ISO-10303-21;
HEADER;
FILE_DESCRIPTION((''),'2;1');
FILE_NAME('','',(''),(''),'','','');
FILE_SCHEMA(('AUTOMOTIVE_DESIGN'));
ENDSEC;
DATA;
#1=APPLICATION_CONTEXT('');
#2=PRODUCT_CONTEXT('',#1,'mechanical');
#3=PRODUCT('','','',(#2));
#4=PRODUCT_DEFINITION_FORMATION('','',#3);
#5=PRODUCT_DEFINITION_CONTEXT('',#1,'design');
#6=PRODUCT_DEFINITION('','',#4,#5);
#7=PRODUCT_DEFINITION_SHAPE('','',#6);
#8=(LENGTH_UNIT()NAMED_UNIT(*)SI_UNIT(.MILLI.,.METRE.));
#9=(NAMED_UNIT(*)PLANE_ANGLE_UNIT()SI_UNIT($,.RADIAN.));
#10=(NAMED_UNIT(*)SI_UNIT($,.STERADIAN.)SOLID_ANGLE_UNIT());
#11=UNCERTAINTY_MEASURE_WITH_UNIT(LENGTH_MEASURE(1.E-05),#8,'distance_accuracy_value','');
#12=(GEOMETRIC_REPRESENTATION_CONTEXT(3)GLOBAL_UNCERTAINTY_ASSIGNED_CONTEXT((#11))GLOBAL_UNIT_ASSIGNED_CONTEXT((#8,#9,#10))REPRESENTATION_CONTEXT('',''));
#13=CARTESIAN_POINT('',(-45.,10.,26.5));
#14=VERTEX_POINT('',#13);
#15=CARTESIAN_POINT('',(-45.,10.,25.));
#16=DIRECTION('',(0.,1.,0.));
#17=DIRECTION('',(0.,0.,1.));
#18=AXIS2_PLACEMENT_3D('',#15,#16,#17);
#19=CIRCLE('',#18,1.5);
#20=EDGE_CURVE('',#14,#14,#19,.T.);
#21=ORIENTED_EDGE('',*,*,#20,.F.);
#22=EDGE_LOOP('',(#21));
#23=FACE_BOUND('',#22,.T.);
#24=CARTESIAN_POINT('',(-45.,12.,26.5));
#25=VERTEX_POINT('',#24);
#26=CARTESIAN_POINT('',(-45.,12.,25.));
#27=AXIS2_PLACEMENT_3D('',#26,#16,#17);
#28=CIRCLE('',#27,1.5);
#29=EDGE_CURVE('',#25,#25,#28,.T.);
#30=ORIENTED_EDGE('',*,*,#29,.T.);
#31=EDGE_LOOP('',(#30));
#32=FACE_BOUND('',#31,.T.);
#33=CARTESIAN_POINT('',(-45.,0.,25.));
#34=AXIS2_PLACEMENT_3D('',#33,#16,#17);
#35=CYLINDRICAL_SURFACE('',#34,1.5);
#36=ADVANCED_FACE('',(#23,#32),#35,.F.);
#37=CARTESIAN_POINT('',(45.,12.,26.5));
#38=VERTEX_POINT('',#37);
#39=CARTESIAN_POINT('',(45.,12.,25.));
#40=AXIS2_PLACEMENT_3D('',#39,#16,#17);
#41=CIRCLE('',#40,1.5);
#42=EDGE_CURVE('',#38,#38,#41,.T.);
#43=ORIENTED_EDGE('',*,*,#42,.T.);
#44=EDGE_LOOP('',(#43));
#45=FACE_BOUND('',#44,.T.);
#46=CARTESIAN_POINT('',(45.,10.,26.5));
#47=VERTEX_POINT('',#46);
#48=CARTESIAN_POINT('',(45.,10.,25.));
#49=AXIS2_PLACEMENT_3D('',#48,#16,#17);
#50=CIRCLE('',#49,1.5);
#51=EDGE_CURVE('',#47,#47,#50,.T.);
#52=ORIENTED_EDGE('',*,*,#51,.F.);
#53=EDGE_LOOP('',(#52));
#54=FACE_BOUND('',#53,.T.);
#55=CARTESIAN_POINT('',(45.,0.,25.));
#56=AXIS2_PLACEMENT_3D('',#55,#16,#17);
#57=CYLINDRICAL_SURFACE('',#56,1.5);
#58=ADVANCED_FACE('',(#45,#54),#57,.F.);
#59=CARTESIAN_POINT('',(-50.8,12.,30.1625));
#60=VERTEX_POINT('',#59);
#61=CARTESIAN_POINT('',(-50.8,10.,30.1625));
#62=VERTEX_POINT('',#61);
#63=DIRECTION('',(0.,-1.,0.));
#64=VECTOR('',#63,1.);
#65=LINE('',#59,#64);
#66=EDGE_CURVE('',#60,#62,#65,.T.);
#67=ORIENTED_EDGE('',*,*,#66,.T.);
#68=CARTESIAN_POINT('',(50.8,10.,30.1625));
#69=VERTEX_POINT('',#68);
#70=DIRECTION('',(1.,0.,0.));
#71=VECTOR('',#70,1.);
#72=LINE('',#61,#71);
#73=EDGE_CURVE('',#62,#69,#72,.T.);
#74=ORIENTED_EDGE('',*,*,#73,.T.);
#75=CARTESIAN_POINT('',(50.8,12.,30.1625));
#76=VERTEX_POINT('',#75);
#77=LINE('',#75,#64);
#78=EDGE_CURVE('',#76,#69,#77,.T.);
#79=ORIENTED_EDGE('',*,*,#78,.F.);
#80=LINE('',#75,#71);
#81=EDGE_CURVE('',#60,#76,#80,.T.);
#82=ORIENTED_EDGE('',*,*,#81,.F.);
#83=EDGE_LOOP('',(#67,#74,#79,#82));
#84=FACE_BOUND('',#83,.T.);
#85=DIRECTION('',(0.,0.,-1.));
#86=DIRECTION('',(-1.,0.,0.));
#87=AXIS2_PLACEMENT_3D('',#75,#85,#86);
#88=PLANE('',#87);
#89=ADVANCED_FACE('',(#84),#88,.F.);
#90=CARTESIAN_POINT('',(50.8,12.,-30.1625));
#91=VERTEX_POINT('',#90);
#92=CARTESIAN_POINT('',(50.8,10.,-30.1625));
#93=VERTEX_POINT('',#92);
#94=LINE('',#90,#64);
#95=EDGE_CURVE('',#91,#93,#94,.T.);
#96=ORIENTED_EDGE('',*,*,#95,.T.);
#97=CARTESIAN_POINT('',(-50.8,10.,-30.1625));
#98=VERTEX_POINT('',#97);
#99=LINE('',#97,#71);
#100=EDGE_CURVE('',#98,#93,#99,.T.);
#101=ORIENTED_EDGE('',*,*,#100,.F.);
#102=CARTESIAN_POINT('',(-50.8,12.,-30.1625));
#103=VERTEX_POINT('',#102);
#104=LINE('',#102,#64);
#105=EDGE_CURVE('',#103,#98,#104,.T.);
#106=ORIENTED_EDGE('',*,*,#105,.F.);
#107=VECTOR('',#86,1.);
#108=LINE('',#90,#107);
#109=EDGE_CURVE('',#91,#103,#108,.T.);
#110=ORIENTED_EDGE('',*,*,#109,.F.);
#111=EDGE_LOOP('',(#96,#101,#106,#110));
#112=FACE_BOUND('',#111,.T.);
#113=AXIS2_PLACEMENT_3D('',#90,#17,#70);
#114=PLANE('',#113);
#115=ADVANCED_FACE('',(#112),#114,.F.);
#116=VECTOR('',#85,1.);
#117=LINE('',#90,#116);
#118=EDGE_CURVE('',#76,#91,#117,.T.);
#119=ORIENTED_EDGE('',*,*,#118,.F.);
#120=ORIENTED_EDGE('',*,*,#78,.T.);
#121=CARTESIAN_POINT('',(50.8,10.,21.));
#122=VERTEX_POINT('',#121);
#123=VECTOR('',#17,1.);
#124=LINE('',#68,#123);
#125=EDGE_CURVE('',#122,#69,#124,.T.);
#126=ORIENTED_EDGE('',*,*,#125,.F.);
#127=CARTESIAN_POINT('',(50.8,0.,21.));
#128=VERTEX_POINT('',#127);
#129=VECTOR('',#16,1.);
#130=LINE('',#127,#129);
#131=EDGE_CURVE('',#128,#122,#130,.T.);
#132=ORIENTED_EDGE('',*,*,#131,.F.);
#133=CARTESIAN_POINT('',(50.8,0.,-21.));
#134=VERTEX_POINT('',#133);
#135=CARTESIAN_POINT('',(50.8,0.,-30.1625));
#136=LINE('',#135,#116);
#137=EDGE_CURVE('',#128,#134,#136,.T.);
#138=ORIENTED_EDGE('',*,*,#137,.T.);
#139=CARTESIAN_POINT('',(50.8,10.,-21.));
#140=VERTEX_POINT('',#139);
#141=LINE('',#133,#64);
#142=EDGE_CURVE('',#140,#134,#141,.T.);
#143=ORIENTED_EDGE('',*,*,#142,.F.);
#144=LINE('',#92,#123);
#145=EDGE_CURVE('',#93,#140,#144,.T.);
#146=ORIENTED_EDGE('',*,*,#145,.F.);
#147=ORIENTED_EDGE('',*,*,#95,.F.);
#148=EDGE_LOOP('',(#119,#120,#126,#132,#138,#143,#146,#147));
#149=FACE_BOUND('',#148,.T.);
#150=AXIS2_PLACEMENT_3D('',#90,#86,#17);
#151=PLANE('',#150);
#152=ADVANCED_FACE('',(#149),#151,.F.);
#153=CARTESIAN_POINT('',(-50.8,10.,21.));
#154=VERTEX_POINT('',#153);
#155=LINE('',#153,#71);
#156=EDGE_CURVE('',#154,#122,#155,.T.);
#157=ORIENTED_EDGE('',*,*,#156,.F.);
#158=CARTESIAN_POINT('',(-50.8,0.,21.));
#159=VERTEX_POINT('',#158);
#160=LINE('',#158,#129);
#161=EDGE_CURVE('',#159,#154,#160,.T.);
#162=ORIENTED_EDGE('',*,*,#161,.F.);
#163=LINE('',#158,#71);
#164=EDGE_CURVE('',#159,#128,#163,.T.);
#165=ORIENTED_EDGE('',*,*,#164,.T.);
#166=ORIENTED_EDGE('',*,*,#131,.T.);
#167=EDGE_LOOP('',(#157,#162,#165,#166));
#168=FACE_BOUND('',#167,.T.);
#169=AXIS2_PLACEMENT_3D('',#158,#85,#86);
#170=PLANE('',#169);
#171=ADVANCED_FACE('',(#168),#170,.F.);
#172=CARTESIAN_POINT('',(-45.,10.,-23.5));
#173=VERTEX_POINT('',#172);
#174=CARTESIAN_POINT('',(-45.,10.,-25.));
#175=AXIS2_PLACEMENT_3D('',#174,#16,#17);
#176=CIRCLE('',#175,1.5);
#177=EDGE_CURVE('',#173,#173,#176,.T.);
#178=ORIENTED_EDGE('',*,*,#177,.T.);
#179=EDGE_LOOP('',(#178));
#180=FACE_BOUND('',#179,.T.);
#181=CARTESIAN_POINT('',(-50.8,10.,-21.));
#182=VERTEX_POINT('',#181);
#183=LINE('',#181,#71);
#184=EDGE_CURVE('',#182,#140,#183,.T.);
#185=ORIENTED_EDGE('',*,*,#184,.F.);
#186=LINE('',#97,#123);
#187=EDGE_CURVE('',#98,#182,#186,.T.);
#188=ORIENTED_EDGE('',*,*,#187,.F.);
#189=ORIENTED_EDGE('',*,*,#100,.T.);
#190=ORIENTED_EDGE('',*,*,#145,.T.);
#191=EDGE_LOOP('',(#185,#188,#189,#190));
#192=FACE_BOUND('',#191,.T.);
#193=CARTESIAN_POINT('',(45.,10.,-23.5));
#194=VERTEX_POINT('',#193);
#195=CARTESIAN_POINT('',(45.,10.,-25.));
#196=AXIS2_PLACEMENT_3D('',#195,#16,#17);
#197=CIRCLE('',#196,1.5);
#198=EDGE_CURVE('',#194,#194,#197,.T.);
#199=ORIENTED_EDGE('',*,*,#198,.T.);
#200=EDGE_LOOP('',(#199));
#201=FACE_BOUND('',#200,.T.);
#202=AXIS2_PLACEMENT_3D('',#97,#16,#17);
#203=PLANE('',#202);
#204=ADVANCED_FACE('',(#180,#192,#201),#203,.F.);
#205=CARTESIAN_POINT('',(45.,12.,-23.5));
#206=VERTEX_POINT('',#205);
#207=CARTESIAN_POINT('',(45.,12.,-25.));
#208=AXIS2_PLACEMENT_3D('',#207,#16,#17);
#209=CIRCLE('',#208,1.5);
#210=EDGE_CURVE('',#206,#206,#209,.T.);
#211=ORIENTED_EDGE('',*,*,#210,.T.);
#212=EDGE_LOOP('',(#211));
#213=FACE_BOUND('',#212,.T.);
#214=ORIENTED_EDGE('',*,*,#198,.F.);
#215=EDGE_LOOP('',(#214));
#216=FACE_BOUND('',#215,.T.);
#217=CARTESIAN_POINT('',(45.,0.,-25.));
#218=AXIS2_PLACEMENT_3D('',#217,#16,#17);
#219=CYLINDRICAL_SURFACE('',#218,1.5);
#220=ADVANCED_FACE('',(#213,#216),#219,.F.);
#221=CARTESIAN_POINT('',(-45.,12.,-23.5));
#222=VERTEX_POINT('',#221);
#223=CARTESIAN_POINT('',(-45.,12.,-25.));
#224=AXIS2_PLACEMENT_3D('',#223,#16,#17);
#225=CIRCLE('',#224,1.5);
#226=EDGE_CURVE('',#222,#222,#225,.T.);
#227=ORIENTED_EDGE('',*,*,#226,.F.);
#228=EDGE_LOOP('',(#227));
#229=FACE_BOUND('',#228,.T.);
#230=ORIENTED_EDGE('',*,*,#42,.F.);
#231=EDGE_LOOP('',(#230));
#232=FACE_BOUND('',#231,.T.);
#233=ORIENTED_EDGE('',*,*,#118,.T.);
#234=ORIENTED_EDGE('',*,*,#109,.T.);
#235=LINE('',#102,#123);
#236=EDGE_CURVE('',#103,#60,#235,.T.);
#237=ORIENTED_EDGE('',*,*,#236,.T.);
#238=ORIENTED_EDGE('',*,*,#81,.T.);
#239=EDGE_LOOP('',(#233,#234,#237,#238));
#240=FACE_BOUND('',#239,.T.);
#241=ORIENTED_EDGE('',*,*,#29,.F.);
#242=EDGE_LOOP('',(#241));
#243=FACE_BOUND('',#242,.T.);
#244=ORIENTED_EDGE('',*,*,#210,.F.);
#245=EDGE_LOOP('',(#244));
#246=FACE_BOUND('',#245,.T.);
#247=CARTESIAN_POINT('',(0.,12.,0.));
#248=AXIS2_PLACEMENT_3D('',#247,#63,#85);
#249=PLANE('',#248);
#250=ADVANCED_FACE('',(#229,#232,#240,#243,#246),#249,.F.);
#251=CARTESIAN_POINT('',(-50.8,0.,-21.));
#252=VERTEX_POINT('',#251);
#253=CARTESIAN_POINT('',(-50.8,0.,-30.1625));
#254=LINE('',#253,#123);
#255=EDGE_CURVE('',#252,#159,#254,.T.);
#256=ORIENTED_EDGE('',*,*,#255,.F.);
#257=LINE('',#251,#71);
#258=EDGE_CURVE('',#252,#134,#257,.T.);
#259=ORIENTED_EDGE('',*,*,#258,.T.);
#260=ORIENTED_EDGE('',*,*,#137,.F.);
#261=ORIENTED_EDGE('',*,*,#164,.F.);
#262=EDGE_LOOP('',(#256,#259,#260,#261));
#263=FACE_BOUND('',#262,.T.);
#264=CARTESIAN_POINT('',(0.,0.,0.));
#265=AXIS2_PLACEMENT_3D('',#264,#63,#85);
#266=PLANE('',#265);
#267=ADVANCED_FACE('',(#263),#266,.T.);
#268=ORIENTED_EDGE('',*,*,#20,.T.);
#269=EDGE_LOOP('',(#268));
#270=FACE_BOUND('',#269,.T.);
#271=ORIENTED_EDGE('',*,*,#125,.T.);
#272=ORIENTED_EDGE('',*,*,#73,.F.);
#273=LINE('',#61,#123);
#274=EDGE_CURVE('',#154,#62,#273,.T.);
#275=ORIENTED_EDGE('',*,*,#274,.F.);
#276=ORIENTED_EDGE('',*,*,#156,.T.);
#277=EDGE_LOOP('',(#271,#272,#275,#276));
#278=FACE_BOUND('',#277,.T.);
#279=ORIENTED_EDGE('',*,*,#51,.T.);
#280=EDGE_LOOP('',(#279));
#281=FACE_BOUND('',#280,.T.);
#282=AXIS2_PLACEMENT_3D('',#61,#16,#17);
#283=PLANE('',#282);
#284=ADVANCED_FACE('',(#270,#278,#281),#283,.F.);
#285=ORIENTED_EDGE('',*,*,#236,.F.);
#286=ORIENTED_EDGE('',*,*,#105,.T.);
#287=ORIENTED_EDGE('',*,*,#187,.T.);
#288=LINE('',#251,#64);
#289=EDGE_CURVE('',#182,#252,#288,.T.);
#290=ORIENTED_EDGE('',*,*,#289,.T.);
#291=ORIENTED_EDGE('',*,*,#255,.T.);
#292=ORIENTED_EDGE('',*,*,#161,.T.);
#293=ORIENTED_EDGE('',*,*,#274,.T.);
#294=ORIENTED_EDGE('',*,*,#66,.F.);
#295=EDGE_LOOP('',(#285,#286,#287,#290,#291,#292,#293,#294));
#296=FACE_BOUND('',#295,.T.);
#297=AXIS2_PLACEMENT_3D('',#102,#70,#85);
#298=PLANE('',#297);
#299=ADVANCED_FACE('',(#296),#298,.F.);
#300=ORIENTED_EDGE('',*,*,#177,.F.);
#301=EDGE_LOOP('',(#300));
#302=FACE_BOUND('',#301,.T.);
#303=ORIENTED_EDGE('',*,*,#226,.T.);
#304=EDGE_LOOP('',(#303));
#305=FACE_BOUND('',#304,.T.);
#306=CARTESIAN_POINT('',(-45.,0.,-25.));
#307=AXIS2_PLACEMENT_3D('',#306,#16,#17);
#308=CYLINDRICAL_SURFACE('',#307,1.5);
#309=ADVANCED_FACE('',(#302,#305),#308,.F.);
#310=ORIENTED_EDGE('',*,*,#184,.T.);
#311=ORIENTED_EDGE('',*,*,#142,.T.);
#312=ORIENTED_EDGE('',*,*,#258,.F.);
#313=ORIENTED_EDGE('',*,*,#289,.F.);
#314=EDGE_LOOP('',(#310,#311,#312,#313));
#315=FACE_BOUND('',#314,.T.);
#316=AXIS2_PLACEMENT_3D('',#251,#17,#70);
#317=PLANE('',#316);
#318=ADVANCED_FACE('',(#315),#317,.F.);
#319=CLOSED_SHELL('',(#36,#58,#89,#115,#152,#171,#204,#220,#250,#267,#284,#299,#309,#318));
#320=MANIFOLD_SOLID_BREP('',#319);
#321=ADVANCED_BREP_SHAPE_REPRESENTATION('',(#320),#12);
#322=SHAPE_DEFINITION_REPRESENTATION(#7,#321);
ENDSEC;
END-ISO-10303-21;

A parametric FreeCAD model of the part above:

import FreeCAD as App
import Part
import Sketcher
from FreeCAD import Vector


def add_polygon(sketch, points):
    """Adds a closed chain of lines whose ends are joined by coincident constraints."""
    first, n = sketch.GeometryCount, len(points)
    for a, b in zip(points, points[1:] + points[:1]):
        sketch.addGeometry(Part.LineSegment(App.Vector(*a, 0), App.Vector(*b, 0)), False)
    for i in range(n):
        sketch.addConstraint(Sketcher.Constraint("Coincident", first + i, 2, first + (i + 1) % n, 1))

doc = App.newDocument("Part")
body = doc.addObject("PartDesign::Body", "Body")

# Sketch on XZ plane
sketch1 = body.newObject("Sketcher::SketchObject", "Sketch")
sketch1.AttachmentSupport = (doc.getObject("XZ_Plane"), [""])
sketch1.MapMode = "FlatFace"
add_polygon(sketch1, [(-50.8, -30.1625), (-50.8, 30.1625), (50.8, 30.1625), (50.8, -30.1625)])  # lines 0-3
sketch1.addConstraint(Sketcher.Constraint("Vertical", 0))
sketch1.addConstraint(Sketcher.Constraint("Horizontal", 1))
sketch1.addConstraint(Sketcher.Constraint("Vertical", 2))
sketch1.addConstraint(Sketcher.Constraint("Horizontal", 3))
sketch1.addConstraint(Sketcher.Constraint("Symmetric", 0, 2, 2, 2, -1, 1))
sketch1.addConstraint(Sketcher.Constraint("DistanceX", 1, 1, 1, 2, 101.6))
sketch1.addConstraint(Sketcher.Constraint("DistanceY", 0, 1, 0, 2, 60.325))
pad1 = body.newObject("PartDesign::Pad", "Pad")
pad1.Profile = sketch1
pad1.Length = 12
pad1.Reversed = True

# Sketch on YZ plane
sketch2 = body.newObject("Sketcher::SketchObject", "Sketch001")
sketch2.AttachmentSupport = (doc.getObject("YZ_Plane"), [""])
sketch2.MapMode = "FlatFace"
sketch2.AttachmentOffset = App.Placement(Vector(0, 0, 50.8), App.Rotation())
add_polygon(sketch2, [(10, 30.1625), (0, 30.1625), (0, 21), (10, 21)])  # lines 0-3
add_polygon(sketch2, [(10, -21), (0, -21), (0, -30.1625), (10, -30.1625)])  # lines 4-7
sketch2.addConstraint(Sketcher.Constraint("Horizontal", 0))
sketch2.addConstraint(Sketcher.Constraint("Vertical", 1))
sketch2.addConstraint(Sketcher.Constraint("Horizontal", 2))
sketch2.addConstraint(Sketcher.Constraint("Vertical", 3))
sketch2.addConstraint(Sketcher.Constraint("Horizontal", 4))
sketch2.addConstraint(Sketcher.Constraint("Vertical", 5))
sketch2.addConstraint(Sketcher.Constraint("Horizontal", 6))
sketch2.addConstraint(Sketcher.Constraint("Vertical", 7))
sketch2.addConstraint(Sketcher.Constraint("Symmetric", 1, 2, 4, 2, -1, 1))
sketch2.addConstraint(Sketcher.Constraint("Symmetric", 0, 2, 5, 2, -1))
sketch2.addConstraint(Sketcher.Constraint("Vertical", 3, 2, 6, 2))
sketch2.addConstraint(Sketcher.Constraint("DistanceX", 0, 2, 0, 1, 10.0))
sketch2.addConstraint(Sketcher.Constraint("DistanceY", -1, 1, 1, 2, 21.0))
sketch2.addConstraint(Sketcher.Constraint("DistanceY", 1, 2, 1, 1, 9.1625))
pocket1 = body.newObject("PartDesign::Pocket", "Pocket")
pocket1.Profile = sketch2
pocket1.Type = "ThroughAll"

# Sketch on XZ plane
sketch3 = body.newObject("Sketcher::SketchObject", "Sketch002")
sketch3.AttachmentSupport = (doc.getObject("XZ_Plane"), [""])
sketch3.MapMode = "FlatFace"
sketch3.AttachmentOffset = App.Placement(Vector(0, 0, -12), App.Rotation())
sketch3.addGeometry(Part.Circle(Vector(-45, -25, 0), Vector(0, 0, 1), 1.5), False)
sketch3.addGeometry(Part.Circle(Vector(-45, 25, 0), Vector(0, 0, 1), 1.5), False)
sketch3.addGeometry(Part.Circle(Vector(45, 25, 0), Vector(0, 0, 1), 1.5), False)
sketch3.addGeometry(Part.Circle(Vector(45, -25, 0), Vector(0, 0, 1), 1.5), False)
sketch3.addConstraint(Sketcher.Constraint("Equal", 0, 1))
sketch3.addConstraint(Sketcher.Constraint("Equal", 1, 2))
sketch3.addConstraint(Sketcher.Constraint("Equal", 2, 3))
sketch3.addConstraint(Sketcher.Constraint("Symmetric", 0, 3, 2, 3, -1, 1))
sketch3.addConstraint(Sketcher.Constraint("Symmetric", 1, 3, 3, 3, -1, 1))
sketch3.addConstraint(Sketcher.Constraint("Symmetric", 1, 3, 2, 3, -2))
sketch3.addConstraint(Sketcher.Constraint("Diameter", 0, 3.0))
sketch3.addConstraint(Sketcher.Constraint("DistanceX", 0, 3, -1, 1, 45.0))
sketch3.addConstraint(Sketcher.Constraint("DistanceY", 0, 3, -1, 1, 25.0))
pocket2 = body.newObject("PartDesign::Pocket", "Pocket001")
pocket2.Profile = sketch3
pocket2.Type = "ThroughAll"
pocket2.Reversed = True

doc.recompute()
